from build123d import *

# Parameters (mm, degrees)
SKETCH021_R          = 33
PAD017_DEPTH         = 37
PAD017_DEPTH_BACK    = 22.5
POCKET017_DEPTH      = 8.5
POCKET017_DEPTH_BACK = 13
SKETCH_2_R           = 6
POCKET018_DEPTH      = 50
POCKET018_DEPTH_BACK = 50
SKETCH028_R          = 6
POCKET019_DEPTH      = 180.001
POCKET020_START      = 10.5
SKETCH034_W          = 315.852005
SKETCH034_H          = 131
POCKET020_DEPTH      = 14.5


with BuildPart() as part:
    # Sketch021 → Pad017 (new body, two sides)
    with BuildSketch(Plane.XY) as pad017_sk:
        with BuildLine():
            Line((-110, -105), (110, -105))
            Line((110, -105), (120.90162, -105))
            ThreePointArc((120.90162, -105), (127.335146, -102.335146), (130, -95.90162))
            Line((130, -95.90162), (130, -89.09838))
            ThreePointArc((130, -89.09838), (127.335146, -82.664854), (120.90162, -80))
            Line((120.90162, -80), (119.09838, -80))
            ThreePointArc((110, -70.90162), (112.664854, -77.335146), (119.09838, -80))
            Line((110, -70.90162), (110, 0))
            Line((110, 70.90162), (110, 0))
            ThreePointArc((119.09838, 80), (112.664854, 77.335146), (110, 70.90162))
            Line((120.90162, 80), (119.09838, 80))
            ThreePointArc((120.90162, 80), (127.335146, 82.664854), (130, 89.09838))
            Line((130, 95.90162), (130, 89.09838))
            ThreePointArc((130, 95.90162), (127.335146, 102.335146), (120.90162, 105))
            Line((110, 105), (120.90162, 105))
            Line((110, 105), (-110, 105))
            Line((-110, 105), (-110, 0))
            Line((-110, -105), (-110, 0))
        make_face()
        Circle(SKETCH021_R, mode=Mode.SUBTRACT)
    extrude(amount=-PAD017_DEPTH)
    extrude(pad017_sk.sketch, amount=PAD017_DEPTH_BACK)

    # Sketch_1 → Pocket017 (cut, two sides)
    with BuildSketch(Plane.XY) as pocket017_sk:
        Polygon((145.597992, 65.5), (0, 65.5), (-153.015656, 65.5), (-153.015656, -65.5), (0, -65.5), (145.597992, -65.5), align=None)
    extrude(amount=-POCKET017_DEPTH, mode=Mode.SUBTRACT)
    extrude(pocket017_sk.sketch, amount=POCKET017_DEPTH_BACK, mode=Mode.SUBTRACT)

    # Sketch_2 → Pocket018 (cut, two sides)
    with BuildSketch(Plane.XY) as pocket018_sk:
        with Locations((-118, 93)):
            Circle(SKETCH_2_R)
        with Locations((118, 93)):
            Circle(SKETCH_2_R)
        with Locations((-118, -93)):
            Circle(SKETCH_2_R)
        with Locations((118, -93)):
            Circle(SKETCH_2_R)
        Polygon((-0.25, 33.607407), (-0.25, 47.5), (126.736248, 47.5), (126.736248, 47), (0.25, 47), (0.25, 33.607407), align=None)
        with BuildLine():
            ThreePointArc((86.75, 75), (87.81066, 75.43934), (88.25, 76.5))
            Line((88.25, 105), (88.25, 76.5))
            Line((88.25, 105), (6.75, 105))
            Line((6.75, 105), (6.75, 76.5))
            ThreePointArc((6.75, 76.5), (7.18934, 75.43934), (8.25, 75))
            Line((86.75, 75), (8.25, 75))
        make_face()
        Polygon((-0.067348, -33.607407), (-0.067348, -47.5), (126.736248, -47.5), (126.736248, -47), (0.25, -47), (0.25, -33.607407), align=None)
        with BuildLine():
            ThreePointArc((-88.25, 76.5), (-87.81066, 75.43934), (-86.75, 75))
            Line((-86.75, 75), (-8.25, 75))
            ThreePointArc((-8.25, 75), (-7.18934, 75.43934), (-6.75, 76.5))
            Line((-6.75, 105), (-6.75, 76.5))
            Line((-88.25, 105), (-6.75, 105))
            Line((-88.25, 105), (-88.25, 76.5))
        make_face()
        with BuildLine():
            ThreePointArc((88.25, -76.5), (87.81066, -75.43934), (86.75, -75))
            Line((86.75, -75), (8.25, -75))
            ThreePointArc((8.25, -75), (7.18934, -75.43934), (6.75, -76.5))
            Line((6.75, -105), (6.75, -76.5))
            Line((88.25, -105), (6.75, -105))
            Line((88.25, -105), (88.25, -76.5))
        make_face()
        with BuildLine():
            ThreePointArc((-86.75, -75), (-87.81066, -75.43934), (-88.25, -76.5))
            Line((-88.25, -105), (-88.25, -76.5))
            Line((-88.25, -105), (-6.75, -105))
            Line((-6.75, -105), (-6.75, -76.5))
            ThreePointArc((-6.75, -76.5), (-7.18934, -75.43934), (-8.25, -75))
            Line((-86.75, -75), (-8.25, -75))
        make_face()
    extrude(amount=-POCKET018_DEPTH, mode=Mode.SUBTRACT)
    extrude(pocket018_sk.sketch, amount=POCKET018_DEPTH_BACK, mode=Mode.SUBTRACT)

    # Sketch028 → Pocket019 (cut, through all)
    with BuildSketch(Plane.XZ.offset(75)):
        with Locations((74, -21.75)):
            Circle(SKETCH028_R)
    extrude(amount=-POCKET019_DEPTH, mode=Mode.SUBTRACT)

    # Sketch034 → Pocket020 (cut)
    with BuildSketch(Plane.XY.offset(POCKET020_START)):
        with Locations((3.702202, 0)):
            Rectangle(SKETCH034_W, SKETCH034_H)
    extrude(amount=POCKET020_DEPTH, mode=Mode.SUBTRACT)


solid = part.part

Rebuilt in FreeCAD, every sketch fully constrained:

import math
import FreeCAD as App
import Part
import Sketcher
from FreeCAD import Vector

doc = App.newDocument("Part")
body = doc.addObject("PartDesign::Body", "Body")

# Sketch on XY plane
sketch1 = body.newObject("Sketcher::SketchObject", "Sketch")
sketch1.AttachmentSupport = (doc.getObject("XY_Plane"), [""])
sketch1.MapMode = "FlatFace"
sketch1.addGeometry(Part.LineSegment(Vector(-110, -105, 0), Vector(120.90162, -105, 0)), False)
sketch1.addGeometry(Part.ArcOfCircle(Part.Circle(Vector(120.901619, -95.901619, 0), Vector(0, 0, 1), 9.098381), math.radians(-89.999996), math.radians(-0.000004)), False)
sketch1.addGeometry(Part.LineSegment(Vector(130, -95.90162, 0), Vector(130, -89.09838, 0)), False)
sketch1.addGeometry(Part.ArcOfCircle(Part.Circle(Vector(120.901619, -89.098381, 0), Vector(0, 0, 1), 9.098381), math.radians(0.000004), math.radians(89.999996)), False)
sketch1.addGeometry(Part.LineSegment(Vector(120.90162, -80, 0), Vector(119.09838, -80, 0)), False)
sketch1.addGeometry(Part.ArcOfCircle(Part.Circle(Vector(119.098381, -70.901619, 0), Vector(0, 0, 1), 9.098381), math.radians(-179.999996), math.radians(-90.000004)), False)
sketch1.addGeometry(Part.LineSegment(Vector(110, -70.90162, 0), Vector(110, 70.90162, 0)), False)
sketch1.addGeometry(Part.ArcOfCircle(Part.Circle(Vector(119.098381, 70.901619, 0), Vector(0, 0, 1), 9.098381), math.radians(90.000004), math.radians(179.999996)), False)
sketch1.addGeometry(Part.LineSegment(Vector(119.09838, 80, 0), Vector(120.90162, 80, 0)), False)
sketch1.addGeometry(Part.ArcOfCircle(Part.Circle(Vector(120.901619, 89.098381, 0), Vector(0, 0, 1), 9.098381), math.radians(-89.999996), math.radians(-0.000004)), False)
sketch1.addGeometry(Part.LineSegment(Vector(130, 89.09838, 0), Vector(130, 95.90162, 0)), False)
sketch1.addGeometry(Part.ArcOfCircle(Part.Circle(Vector(120.901619, 95.901619, 0), Vector(0, 0, 1), 9.098381), math.radians(0.000004), math.radians(89.999996)), False)
sketch1.addGeometry(Part.LineSegment(Vector(120.90162, 105, 0), Vector(-110, 105, 0)), False)
sketch1.addGeometry(Part.LineSegment(Vector(-110, 105, 0), Vector(-110, -105, 0)), False)
sketch1.addGeometry(Part.Circle(Vector(0, 0, 0), Vector(0, 0, 1), 33), False)
sketch1.addConstraint(Sketcher.Constraint("Tangent", 0, 2, 1, 1))
sketch1.addConstraint(Sketcher.Constraint("Tangent", 1, 2, 2, 1))
sketch1.addConstraint(Sketcher.Constraint("Tangent", 2, 2, 3, 1))
sketch1.addConstraint(Sketcher.Constraint("Tangent", 3, 2, 4, 1))
sketch1.addConstraint(Sketcher.Constraint("Tangent", 4, 2, 5, 2))
sketch1.addConstraint(Sketcher.Constraint("Tangent", 5, 1, 6, 1))
sketch1.addConstraint(Sketcher.Constraint("Tangent", 6, 2, 7, 2))
sketch1.addConstraint(Sketcher.Constraint("Tangent", 7, 1, 8, 1))
sketch1.addConstraint(Sketcher.Constraint("Tangent", 8, 2, 9, 1))
sketch1.addConstraint(Sketcher.Constraint("Tangent", 9, 2, 10, 1))
sketch1.addConstraint(Sketcher.Constraint("Tangent", 10, 2, 11, 1))
sketch1.addConstraint(Sketcher.Constraint("Tangent", 11, 2, 12, 1))
sketch1.addConstraint(Sketcher.Constraint("Coincident", 12, 2, 13, 1))
sketch1.addConstraint(Sketcher.Constraint("Coincident", 13, 2, 0, 1))
sketch1.addConstraint(Sketcher.Constraint("Horizontal", 0))
sketch1.addConstraint(Sketcher.Constraint("Vertical", 2))
sketch1.addConstraint(Sketcher.Constraint("Horizontal", 4))
sketch1.addConstraint(Sketcher.Constraint("Vertical", 6))
sketch1.addConstraint(Sketcher.Constraint("Horizontal", 8))
sketch1.addConstraint(Sketcher.Constraint("Vertical", 10))
sketch1.addConstraint(Sketcher.Constraint("Horizontal", 12))
sketch1.addConstraint(Sketcher.Constraint("Vertical", 13))
sketch1.addConstraint(Sketcher.Constraint("Coincident", 14, 3, -1, 1))
sketch1.addConstraint(Sketcher.Constraint("Equal", 1, 3))
sketch1.addConstraint(Sketcher.Constraint("Equal", 3, 5))
sketch1.addConstraint(Sketcher.Constraint("Equal", 5, 7))
sketch1.addConstraint(Sketcher.Constraint("Equal", 7, 9))
sketch1.addConstraint(Sketcher.Constraint("Equal", 9, 11))
sketch1.addConstraint(Sketcher.Constraint("Symmetric", 3, 3, 9, 3, -1))
sketch1.addConstraint(Sketcher.Constraint("Equal", 2, 10))
sketch1.addConstraint(Sketcher.Constraint("Diameter", 14, 66.0))
sketch1.addConstraint(Sketcher.Constraint("DistanceY", 13, 2, 13, 1, 210.0))
sketch1.addConstraint(Sketcher.Constraint("DistanceX", -1, 1, 1, 2, 130.0))
sketch1.addConstraint(Sketcher.Constraint("DistanceY", 3, 2, -1, 1, 80.0))
sketch1.addConstraint(Sketcher.Constraint("DistanceX", -1, 1, 5, 1, 110.0))
sketch1.addConstraint(Sketcher.Constraint("DistanceX", 12, 2, -1, 1, 110.0))
sketch1.addConstraint(Sketcher.Constraint("Radius", 1, 9.098381))
pad1 = body.newObject("PartDesign::Pad", "Pad")
pad1.Profile = sketch1
pad1.Type = "TwoLengths"
pad1.Length = 37
pad1.Length2 = 22.5
pad1.Reversed = True

# Sketch on XY plane
sketch2 = body.newObject("Sketcher::SketchObject", "Sketch001")
sketch2.AttachmentSupport = (doc.getObject("XY_Plane"), [""])
sketch2.MapMode = "FlatFace"
sketch2.addGeometry(Part.LineSegment(Vector(145.597992, 65.5, 0), Vector(-153.015656, 65.5, 0)), False)
sketch2.addGeometry(Part.LineSegment(Vector(-153.015656, 65.5, 0), Vector(-153.015656, -65.5, 0)), False)
sketch2.addGeometry(Part.LineSegment(Vector(-153.015656, -65.5, 0), Vector(145.597992, -65.5, 0)), False)
sketch2.addGeometry(Part.LineSegment(Vector(145.597992, -65.5, 0), Vector(145.597992, 65.5, 0)), False)
sketch2.addConstraint(Sketcher.Constraint("Coincident", 0, 2, 1, 1))
sketch2.addConstraint(Sketcher.Constraint("Coincident", 1, 2, 2, 1))
sketch2.addConstraint(Sketcher.Constraint("Coincident", 2, 2, 3, 1))
sketch2.addConstraint(Sketcher.Constraint("Coincident", 3, 2, 0, 1))
sketch2.addConstraint(Sketcher.Constraint("Horizontal", 0))
sketch2.addConstraint(Sketcher.Constraint("Vertical", 1))
sketch2.addConstraint(Sketcher.Constraint("Horizontal", 2))
sketch2.addConstraint(Sketcher.Constraint("Vertical", 3))
sketch2.addConstraint(Sketcher.Constraint("DistanceY", 1, 2, 1, 1, 131.0))
sketch2.addConstraint(Sketcher.Constraint("DistanceY", -1, 1, 0, 2, 65.5))
sketch2.addConstraint(Sketcher.Constraint("DistanceX", 0, 2, 0, 1, 298.613648))
sketch2.addConstraint(Sketcher.Constraint("DistanceX", -1, 1, 2, 2, 145.597992))
pocket1 = body.newObject("PartDesign::Pocket", "Pocket")
pocket1.Profile = sketch2
pocket1.Type = "TwoLengths"
pocket1.Length = 8.5
pocket1.Length2 = 13

# Sketch on XY plane
sketch3 = body.newObject("Sketcher::SketchObject", "Sketch002")
sketch3.AttachmentSupport = (doc.getObject("XY_Plane"), [""])
sketch3.MapMode = "FlatFace"
sketch3.addGeometry(Part.Circle(Vector(-118, 93, 0), Vector(0, 0, 1), 6), False)
sketch3.addGeometry(Part.Circle(Vector(118, 93, 0), Vector(0, 0, 1), 6), False)
sketch3.addGeometry(Part.Circle(Vector(-118, -93, 0), Vector(0, 0, 1), 6), False)
sketch3.addGeometry(Part.Circle(Vector(118, -93, 0), Vector(0, 0, 1), 6), False)
sketch3.addGeometry(Part.LineSegment(Vector(-0.25, 47.5, 0), Vector(-0.25, 33.607407, 0)), False)
sketch3.addGeometry(Part.LineSegment(Vector(-0.25, 33.607407, 0), Vector(0.25, 33.607407, 0)), False)
sketch3.addGeometry(Part.LineSegment(Vector(0.25, 33.607407, 0), Vector(0.25, 47, 0)), False)
sketch3.addGeometry(Part.LineSegment(Vector(0.25, 47, 0), Vector(126.736248, 47, 0)), False)
sketch3.addGeometry(Part.LineSegment(Vector(126.736248, 47, 0), Vector(126.736248, 47.5, 0)), False)
sketch3.addGeometry(Part.LineSegment(Vector(126.736248, 47.5, 0), Vector(-0.25, 47.5, 0)), False)
sketch3.addGeometry(Part.ArcOfCircle(Part.Circle(Vector(86.749999, 76.500001, 0), Vector(0, 0, 1), 1.500001), math.radians(-89.999978), math.radians(-0.000022)), False)
sketch3.addGeometry(Part.LineSegment(Vector(88.25, 76.5, 0), Vector(88.25, 105, 0)), False)
sketch3.addGeometry(Part.LineSegment(Vector(88.25, 105, 0), Vector(6.75, 105, 0)), False)
sketch3.addGeometry(Part.LineSegment(Vector(6.75, 105, 0), Vector(6.75, 76.5, 0)), False)
sketch3.addGeometry(Part.ArcOfCircle(Part.Circle(Vector(8.250001, 76.500001, 0), Vector(0, 0, 1), 1.500001), math.radians(-179.999978), math.radians(-90.000022)), False)
sketch3.addGeometry(Part.LineSegment(Vector(8.25, 75, 0), Vector(86.75, 75, 0)), False)
sketch3.addGeometry(Part.LineSegment(Vector(-0.067348, -33.607407, 0), Vector(-0.067348, -47.5, 0)), False)
sketch3.addGeometry(Part.LineSegment(Vector(-0.067348, -47.5, 0), Vector(126.736248, -47.5, 0)), False)
sketch3.addGeometry(Part.LineSegment(Vector(126.736248, -47.5, 0), Vector(126.736248, -47, 0)), False)
sketch3.addGeometry(Part.LineSegment(Vector(126.736248, -47, 0), Vector(0.25, -47, 0)), False)
sketch3.addGeometry(Part.LineSegment(Vector(0.25, -47, 0), Vector(0.25, -33.607407, 0)), False)
sketch3.addGeometry(Part.LineSegment(Vector(0.25, -33.607407, 0), Vector(-0.067348, -33.607407, 0)), False)
sketch3.addGeometry(Part.ArcOfCircle(Part.Circle(Vector(-86.749999, 76.500001, 0), Vector(0, 0, 1), 1.500001), math.radians(-179.999978), math.radians(-90.000022)), False)
sketch3.addGeometry(Part.LineSegment(Vector(-86.75, 75, 0), Vector(-8.25, 75, 0)), False)
sketch3.addGeometry(Part.ArcOfCircle(Part.Circle(Vector(-8.250001, 76.500001, 0), Vector(0, 0, 1), 1.500001), math.radians(-89.999978), math.radians(-0.000022)), False)
sketch3.addGeometry(Part.LineSegment(Vector(-6.75, 76.5, 0), Vector(-6.75, 105, 0)), False)
sketch3.addGeometry(Part.LineSegment(Vector(-6.75, 105, 0), Vector(-88.25, 105, 0)), False)
sketch3.addGeometry(Part.LineSegment(Vector(-88.25, 105, 0), Vector(-88.25, 76.5, 0)), False)
sketch3.addGeometry(Part.ArcOfCircle(Part.Circle(Vector(86.749999, -76.500001, 0), Vector(0, 0, 1), 1.500001), math.radians(0.000022), math.radians(89.999978)), False)
sketch3.addGeometry(Part.LineSegment(Vector(86.75, -75, 0), Vector(8.25, -75, 0)), False)
sketch3.addGeometry(Part.ArcOfCircle(Part.Circle(Vector(8.250001, -76.500001, 0), Vector(0, 0, 1), 1.500001), math.radians(90.000022), math.radians(179.999978)), False)
sketch3.addGeometry(Part.LineSegment(Vector(6.75, -76.5, 0), Vector(6.75, -105, 0)), False)
sketch3.addGeometry(Part.LineSegment(Vector(6.75, -105, 0), Vector(88.25, -105, 0)), False)
sketch3.addGeometry(Part.LineSegment(Vector(88.25, -105, 0), Vector(88.25, -76.5, 0)), False)
sketch3.addGeometry(Part.ArcOfCircle(Part.Circle(Vector(-86.749999, -76.500001, 0), Vector(0, 0, 1), 1.500001), math.radians(90.000022), math.radians(179.999978)), False)
sketch3.addGeometry(Part.LineSegment(Vector(-88.25, -76.5, 0), Vector(-88.25, -105, 0)), False)
sketch3.addGeometry(Part.LineSegment(Vector(-88.25, -105, 0), Vector(-6.75, -105, 0)), False)
sketch3.addGeometry(Part.LineSegment(Vector(-6.75, -105, 0), Vector(-6.75, -76.5, 0)), False)
sketch3.addGeometry(Part.ArcOfCircle(Part.Circle(Vector(-8.250001, -76.500001, 0), Vector(0, 0, 1), 1.500001), math.radians(0.000022), math.radians(89.999978)), False)
sketch3.addGeometry(Part.LineSegment(Vector(-8.25, -75, 0), Vector(-86.75, -75, 0)), False)
sketch3.addConstraint(Sketcher.Constraint("Coincident", 4, 2, 5, 1))
sketch3.addConstraint(Sketcher.Constraint("Coincident", 5, 2, 6, 1))
sketch3.addConstraint(Sketcher.Constraint("Coincident", 6, 2, 7, 1))
sketch3.addConstraint(Sketcher.Constraint("Coincident", 7, 2, 8, 1))
sketch3.addConstraint(Sketcher.Constraint("Coincident", 8, 2, 9, 1))
sketch3.addConstraint(Sketcher.Constraint("Coincident", 9, 2, 4, 1))
sketch3.addConstraint(Sketcher.Constraint("Tangent", 10, 2, 11, 1))
sketch3.addConstraint(Sketcher.Constraint("Coincident", 11, 2, 12, 1))
sketch3.addConstraint(Sketcher.Constraint("Coincident", 12, 2, 13, 1))
sketch3.addConstraint(Sketcher.Constraint("Tangent", 13, 2, 14, 1))
sketch3.addConstraint(Sketcher.Constraint("Tangent", 14, 2, 15, 1))
sketch3.addConstraint(Sketcher.Constraint("Tangent", 15, 2, 10, 1))
sketch3.addConstraint(Sketcher.Constraint("Coincident", 16, 2, 17, 1))
sketch3.addConstraint(Sketcher.Constraint("Coincident", 17, 2, 18, 1))
sketch3.addConstraint(Sketcher.Constraint("Coincident", 18, 2, 19, 1))
sketch3.addConstraint(Sketcher.Constraint("Coincident", 19, 2, 20, 1))
sketch3.addConstraint(Sketcher.Constraint("Coincident", 20, 2, 21, 1))
sketch3.addConstraint(Sketcher.Constraint("Coincident", 21, 2, 16, 1))
sketch3.addConstraint(Sketcher.Constraint("Tangent", 22, 2, 23, 1))
sketch3.addConstraint(Sketcher.Constraint("Tangent", 23, 2, 24, 1))
sketch3.addConstraint(Sketcher.Constraint("Tangent", 24, 2, 25, 1))
sketch3.addConstraint(Sketcher.Constraint("Coincident", 25, 2, 26, 1))
sketch3.addConstraint(Sketcher.Constraint("Coincident", 26, 2, 27, 1))
sketch3.addConstraint(Sketcher.Constraint("Tangent", 27, 2, 22, 1))
sketch3.addConstraint(Sketcher.Constraint("Tangent", 28, 2, 29, 1))
sketch3.addConstraint(Sketcher.Constraint("Tangent", 29, 2, 30, 1))
sketch3.addConstraint(Sketcher.Constraint("Tangent", 30, 2, 31, 1))
sketch3.addConstraint(Sketcher.Constraint("Coincident", 31, 2, 32, 1))
sketch3.addConstraint(Sketcher.Constraint("Coincident", 32, 2, 33, 1))
sketch3.addConstraint(Sketcher.Constraint("Tangent", 33, 2, 28, 1))
sketch3.addConstraint(Sketcher.Constraint("Tangent", 34, 2, 35, 1))
sketch3.addConstraint(Sketcher.Constraint("Coincident", 35, 2, 36, 1))
sketch3.addConstraint(Sketcher.Constraint("Coincident", 36, 2, 37, 1))
sketch3.addConstraint(Sketcher.Constraint("Tangent", 37, 2, 38, 1))
sketch3.addConstraint(Sketcher.Constraint("Tangent", 38, 2, 39, 1))
sketch3.addConstraint(Sketcher.Constraint("Tangent", 39, 2, 34, 1))
sketch3.addConstraint(Sketcher.Constraint("Vertical", 4))
sketch3.addConstraint(Sketcher.Constraint("Horizontal", 5))
sketch3.addConstraint(Sketcher.Constraint("Vertical", 6))
sketch3.addConstraint(Sketcher.Constraint("Horizontal", 7))
sketch3.addConstraint(Sketcher.Constraint("Vertical", 8))
sketch3.addConstraint(Sketcher.Constraint("Horizontal", 9))
sketch3.addConstraint(Sketcher.Constraint("Vertical", 11))
sketch3.addConstraint(Sketcher.Constraint("Horizontal", 12))
sketch3.addConstraint(Sketcher.Constraint("Vertical", 13))
sketch3.addConstraint(Sketcher.Constraint("Horizontal", 15))
sketch3.addConstraint(Sketcher.Constraint("Vertical", 16))
sketch3.addConstraint(Sketcher.Constraint("Horizontal", 17))
sketch3.addConstraint(Sketcher.Constraint("Vertical", 18))
sketch3.addConstraint(Sketcher.Constraint("Horizontal", 19))
sketch3.addConstraint(Sketcher.Constraint("Vertical", 20))
sketch3.addConstraint(Sketcher.Constraint("Horizontal", 21))
sketch3.addConstraint(Sketcher.Constraint("Horizontal", 23))
sketch3.addConstraint(Sketcher.Constraint("Vertical", 25))
sketch3.addConstraint(Sketcher.Constraint("Horizontal", 26))
sketch3.addConstraint(Sketcher.Constraint("Vertical", 27))
sketch3.addConstraint(Sketcher.Constraint("Horizontal", 29))
sketch3.addConstraint(Sketcher.Constraint("Vertical", 31))
sketch3.addConstraint(Sketcher.Constraint("Horizontal", 32))
sketch3.addConstraint(Sketcher.Constraint("Vertical", 33))
sketch3.addConstraint(Sketcher.Constraint("Vertical", 35))
sketch3.addConstraint(Sketcher.Constraint("Horizontal", 36))
sketch3.addConstraint(Sketcher.Constraint("Vertical", 37))
sketch3.addConstraint(Sketcher.Constraint("Horizontal", 39))
sketch3.addConstraint(Sketcher.Constraint("Equal", 0, 1))
sketch3.addConstraint(Sketcher.Constraint("Equal", 1, 2))
sketch3.addConstraint(Sketcher.Constraint("Equal", 2, 3))
sketch3.addConstraint(Sketcher.Constraint("Equal", 10, 14))
sketch3.addConstraint(Sketcher.Constraint("Equal", 14, 22))
sketch3.addConstraint(Sketcher.Constraint("Equal", 22, 24))
sketch3.addConstraint(Sketcher.Constraint("Equal", 24, 28))
sketch3.addConstraint(Sketcher.Constraint("Equal", 28, 30))
sketch3.addConstraint(Sketcher.Constraint("Equal", 30, 34))
sketch3.addConstraint(Sketcher.Constraint("Equal", 34, 38))
sketch3.addConstraint(Sketcher.Constraint("Symmetric", 1, 3, 2, 3, -1, 1))
sketch3.addConstraint(Sketcher.Constraint("Symmetric", 0, 3, 3, 3, -1, 1))
sketch3.addConstraint(Sketcher.Constraint("Symmetric", 22, 3, 28, 3, -1, 1))
sketch3.addConstraint(Sketcher.Constraint("Symmetric", 10, 3, 34, 3, -1, 1))
sketch3.addConstraint(Sketcher.Constraint("Symmetric", 4, 2, 20, 2, -1, 1))
sketch3.addConstraint(Sketcher.Constraint("Symmetric", 25, 2, 31, 2, -1, 1))
sketch3.addConstraint(Sketcher.Constraint("Symmetric", 12, 2, 36, 2, -1, 1))
sketch3.addConstraint(Sketcher.Constraint("Symmetric", 0, 3, 1, 3, -2))
sketch3.addConstraint(Sketcher.Constraint("Symmetric", 10, 3, 22, 3, -2))
sketch3.addConstraint(Sketcher.Constraint("Symmetric", 12, 2, 25, 2, -2))
sketch3.addConstraint(Sketcher.Constraint("Symmetric", 8, 2, 17, 2, -1))
sketch3.addConstraint(Sketcher.Constraint("Symmetric", 6, 2, 19, 2, -1))
sketch3.addConstraint(Sketcher.Constraint("Equal", 5, 8))
sketch3.addConstraint(Sketcher.Constraint("Diameter", 0, 12.0))
sketch3.addConstraint(Sketcher.Constraint("Radius", 10, 1.500001))
sketch3.addConstraint(Sketcher.Constraint("DistanceX", 5, 1, 5, 2, 0.5))
sketch3.addConstraint(Sketcher.Constraint("DistanceX", 12, 2, 12, 1, 81.5))
sketch3.addConstraint(Sketcher.Constraint("DistanceY", 11, 1, 11, 2, 28.5))
sketch3.addConstraint(Sketcher.Constraint("DistanceX", 0, 3, -1, 1, 118.0))
sketch3.addConstraint(Sketcher.Constraint("DistanceY", -1, 1, 0, 3, 93.0))
sketch3.addConstraint(Sketcher.Constraint("DistanceY", -1, 1, 6, 2, 47.0))
sketch3.addConstraint(Sketcher.Constraint("DistanceY", -1, 1, 11, 2, 105.0))
sketch3.addConstraint(Sketcher.Constraint("DistanceX", 22, 3, 14, 3, 95.0))
sketch3.addConstraint(Sketcher.Constraint("DistanceX", 7, 1, 7, 2, 126.486248))
sketch3.addConstraint(Sketcher.Constraint("DistanceX", 17, 1, 17, 2, 126.803596))
sketch3.addConstraint(Sketcher.Constraint("DistanceY", 4, 2, 4, 1, 13.892593))
pocket2 = body.newObject("PartDesign::Pocket", "Pocket001")
pocket2.Profile = sketch3
pocket2.Type = "ThroughAll"
pocket2.Midplane = True

# Sketch on XZ plane
sketch4 = body.newObject("Sketcher::SketchObject", "Sketch003")
sketch4.AttachmentSupport = (doc.getObject("XZ_Plane"), [""])
sketch4.MapMode = "FlatFace"
sketch4.AttachmentOffset = App.Placement(Vector(0, 0, 75), App.Rotation())
sketch4.addGeometry(Part.Circle(Vector(74, -21.75, 0), Vector(0, 0, 1), 6), False)
sketch4.addConstraint(Sketcher.Constraint("Diameter", 0, 12.0))
sketch4.addConstraint(Sketcher.Constraint("DistanceX", -1, 1, 0, 3, 74.0))
sketch4.addConstraint(Sketcher.Constraint("DistanceY", 0, 3, -1, 1, 21.75))
pocket3 = body.newObject("PartDesign::Pocket", "Pocket002")
pocket3.Profile = sketch4
pocket3.Type = "ThroughAll"

# Sketch on XY plane
sketch5 = body.newObject("Sketcher::SketchObject", "Sketch004")
sketch5.AttachmentSupport = (doc.getObject("XY_Plane"), [""])
sketch5.MapMode = "FlatFace"
sketch5.AttachmentOffset = App.Placement(Vector(0, 0, 10.5), App.Rotation())
sketch5.addGeometry(Part.LineSegment(Vector(-154.223801, 65.5, 0), Vector(-154.223801, -65.5, 0)), False)
sketch5.addGeometry(Part.LineSegment(Vector(-154.223801, -65.5, 0), Vector(161.628205, -65.5, 0)), False)
sketch5.addGeometry(Part.LineSegment(Vector(161.628205, -65.5, 0), Vector(161.628205, 65.5, 0)), False)
sketch5.addGeometry(Part.LineSegment(Vector(161.628205, 65.5, 0), Vector(-154.223801, 65.5, 0)), False)
sketch5.addConstraint(Sketcher.Constraint("Coincident", 0, 2, 1, 1))
sketch5.addConstraint(Sketcher.Constraint("Coincident", 1, 2, 2, 1))
sketch5.addConstraint(Sketcher.Constraint("Coincident", 2, 2, 3, 1))
sketch5.addConstraint(Sketcher.Constraint("Coincident", 3, 2, 0, 1))
sketch5.addConstraint(Sketcher.Constraint("Vertical", 0))
sketch5.addConstraint(Sketcher.Constraint("Horizontal", 1))
sketch5.addConstraint(Sketcher.Constraint("Vertical", 2))
sketch5.addConstraint(Sketcher.Constraint("Horizontal", 3))
sketch5.addConstraint(Sketcher.Constraint("DistanceY", 0, 2, 0, 1, 131.0))
sketch5.addConstraint(Sketcher.Constraint("DistanceY", 0, 2, -1, 1, 65.5))
sketch5.addConstraint(Sketcher.Constraint("DistanceX", 0, 2, -1, 1, 154.223801))
sketch5.addConstraint(Sketcher.Constraint("DistanceX", 1, 1, 1, 2, 315.852005))
pocket4 = body.newObject("PartDesign::Pocket", "Pocket003")
pocket4.Profile = sketch5
pocket4.Length = 14.5
pocket4.Reversed = True

doc.recompute()
